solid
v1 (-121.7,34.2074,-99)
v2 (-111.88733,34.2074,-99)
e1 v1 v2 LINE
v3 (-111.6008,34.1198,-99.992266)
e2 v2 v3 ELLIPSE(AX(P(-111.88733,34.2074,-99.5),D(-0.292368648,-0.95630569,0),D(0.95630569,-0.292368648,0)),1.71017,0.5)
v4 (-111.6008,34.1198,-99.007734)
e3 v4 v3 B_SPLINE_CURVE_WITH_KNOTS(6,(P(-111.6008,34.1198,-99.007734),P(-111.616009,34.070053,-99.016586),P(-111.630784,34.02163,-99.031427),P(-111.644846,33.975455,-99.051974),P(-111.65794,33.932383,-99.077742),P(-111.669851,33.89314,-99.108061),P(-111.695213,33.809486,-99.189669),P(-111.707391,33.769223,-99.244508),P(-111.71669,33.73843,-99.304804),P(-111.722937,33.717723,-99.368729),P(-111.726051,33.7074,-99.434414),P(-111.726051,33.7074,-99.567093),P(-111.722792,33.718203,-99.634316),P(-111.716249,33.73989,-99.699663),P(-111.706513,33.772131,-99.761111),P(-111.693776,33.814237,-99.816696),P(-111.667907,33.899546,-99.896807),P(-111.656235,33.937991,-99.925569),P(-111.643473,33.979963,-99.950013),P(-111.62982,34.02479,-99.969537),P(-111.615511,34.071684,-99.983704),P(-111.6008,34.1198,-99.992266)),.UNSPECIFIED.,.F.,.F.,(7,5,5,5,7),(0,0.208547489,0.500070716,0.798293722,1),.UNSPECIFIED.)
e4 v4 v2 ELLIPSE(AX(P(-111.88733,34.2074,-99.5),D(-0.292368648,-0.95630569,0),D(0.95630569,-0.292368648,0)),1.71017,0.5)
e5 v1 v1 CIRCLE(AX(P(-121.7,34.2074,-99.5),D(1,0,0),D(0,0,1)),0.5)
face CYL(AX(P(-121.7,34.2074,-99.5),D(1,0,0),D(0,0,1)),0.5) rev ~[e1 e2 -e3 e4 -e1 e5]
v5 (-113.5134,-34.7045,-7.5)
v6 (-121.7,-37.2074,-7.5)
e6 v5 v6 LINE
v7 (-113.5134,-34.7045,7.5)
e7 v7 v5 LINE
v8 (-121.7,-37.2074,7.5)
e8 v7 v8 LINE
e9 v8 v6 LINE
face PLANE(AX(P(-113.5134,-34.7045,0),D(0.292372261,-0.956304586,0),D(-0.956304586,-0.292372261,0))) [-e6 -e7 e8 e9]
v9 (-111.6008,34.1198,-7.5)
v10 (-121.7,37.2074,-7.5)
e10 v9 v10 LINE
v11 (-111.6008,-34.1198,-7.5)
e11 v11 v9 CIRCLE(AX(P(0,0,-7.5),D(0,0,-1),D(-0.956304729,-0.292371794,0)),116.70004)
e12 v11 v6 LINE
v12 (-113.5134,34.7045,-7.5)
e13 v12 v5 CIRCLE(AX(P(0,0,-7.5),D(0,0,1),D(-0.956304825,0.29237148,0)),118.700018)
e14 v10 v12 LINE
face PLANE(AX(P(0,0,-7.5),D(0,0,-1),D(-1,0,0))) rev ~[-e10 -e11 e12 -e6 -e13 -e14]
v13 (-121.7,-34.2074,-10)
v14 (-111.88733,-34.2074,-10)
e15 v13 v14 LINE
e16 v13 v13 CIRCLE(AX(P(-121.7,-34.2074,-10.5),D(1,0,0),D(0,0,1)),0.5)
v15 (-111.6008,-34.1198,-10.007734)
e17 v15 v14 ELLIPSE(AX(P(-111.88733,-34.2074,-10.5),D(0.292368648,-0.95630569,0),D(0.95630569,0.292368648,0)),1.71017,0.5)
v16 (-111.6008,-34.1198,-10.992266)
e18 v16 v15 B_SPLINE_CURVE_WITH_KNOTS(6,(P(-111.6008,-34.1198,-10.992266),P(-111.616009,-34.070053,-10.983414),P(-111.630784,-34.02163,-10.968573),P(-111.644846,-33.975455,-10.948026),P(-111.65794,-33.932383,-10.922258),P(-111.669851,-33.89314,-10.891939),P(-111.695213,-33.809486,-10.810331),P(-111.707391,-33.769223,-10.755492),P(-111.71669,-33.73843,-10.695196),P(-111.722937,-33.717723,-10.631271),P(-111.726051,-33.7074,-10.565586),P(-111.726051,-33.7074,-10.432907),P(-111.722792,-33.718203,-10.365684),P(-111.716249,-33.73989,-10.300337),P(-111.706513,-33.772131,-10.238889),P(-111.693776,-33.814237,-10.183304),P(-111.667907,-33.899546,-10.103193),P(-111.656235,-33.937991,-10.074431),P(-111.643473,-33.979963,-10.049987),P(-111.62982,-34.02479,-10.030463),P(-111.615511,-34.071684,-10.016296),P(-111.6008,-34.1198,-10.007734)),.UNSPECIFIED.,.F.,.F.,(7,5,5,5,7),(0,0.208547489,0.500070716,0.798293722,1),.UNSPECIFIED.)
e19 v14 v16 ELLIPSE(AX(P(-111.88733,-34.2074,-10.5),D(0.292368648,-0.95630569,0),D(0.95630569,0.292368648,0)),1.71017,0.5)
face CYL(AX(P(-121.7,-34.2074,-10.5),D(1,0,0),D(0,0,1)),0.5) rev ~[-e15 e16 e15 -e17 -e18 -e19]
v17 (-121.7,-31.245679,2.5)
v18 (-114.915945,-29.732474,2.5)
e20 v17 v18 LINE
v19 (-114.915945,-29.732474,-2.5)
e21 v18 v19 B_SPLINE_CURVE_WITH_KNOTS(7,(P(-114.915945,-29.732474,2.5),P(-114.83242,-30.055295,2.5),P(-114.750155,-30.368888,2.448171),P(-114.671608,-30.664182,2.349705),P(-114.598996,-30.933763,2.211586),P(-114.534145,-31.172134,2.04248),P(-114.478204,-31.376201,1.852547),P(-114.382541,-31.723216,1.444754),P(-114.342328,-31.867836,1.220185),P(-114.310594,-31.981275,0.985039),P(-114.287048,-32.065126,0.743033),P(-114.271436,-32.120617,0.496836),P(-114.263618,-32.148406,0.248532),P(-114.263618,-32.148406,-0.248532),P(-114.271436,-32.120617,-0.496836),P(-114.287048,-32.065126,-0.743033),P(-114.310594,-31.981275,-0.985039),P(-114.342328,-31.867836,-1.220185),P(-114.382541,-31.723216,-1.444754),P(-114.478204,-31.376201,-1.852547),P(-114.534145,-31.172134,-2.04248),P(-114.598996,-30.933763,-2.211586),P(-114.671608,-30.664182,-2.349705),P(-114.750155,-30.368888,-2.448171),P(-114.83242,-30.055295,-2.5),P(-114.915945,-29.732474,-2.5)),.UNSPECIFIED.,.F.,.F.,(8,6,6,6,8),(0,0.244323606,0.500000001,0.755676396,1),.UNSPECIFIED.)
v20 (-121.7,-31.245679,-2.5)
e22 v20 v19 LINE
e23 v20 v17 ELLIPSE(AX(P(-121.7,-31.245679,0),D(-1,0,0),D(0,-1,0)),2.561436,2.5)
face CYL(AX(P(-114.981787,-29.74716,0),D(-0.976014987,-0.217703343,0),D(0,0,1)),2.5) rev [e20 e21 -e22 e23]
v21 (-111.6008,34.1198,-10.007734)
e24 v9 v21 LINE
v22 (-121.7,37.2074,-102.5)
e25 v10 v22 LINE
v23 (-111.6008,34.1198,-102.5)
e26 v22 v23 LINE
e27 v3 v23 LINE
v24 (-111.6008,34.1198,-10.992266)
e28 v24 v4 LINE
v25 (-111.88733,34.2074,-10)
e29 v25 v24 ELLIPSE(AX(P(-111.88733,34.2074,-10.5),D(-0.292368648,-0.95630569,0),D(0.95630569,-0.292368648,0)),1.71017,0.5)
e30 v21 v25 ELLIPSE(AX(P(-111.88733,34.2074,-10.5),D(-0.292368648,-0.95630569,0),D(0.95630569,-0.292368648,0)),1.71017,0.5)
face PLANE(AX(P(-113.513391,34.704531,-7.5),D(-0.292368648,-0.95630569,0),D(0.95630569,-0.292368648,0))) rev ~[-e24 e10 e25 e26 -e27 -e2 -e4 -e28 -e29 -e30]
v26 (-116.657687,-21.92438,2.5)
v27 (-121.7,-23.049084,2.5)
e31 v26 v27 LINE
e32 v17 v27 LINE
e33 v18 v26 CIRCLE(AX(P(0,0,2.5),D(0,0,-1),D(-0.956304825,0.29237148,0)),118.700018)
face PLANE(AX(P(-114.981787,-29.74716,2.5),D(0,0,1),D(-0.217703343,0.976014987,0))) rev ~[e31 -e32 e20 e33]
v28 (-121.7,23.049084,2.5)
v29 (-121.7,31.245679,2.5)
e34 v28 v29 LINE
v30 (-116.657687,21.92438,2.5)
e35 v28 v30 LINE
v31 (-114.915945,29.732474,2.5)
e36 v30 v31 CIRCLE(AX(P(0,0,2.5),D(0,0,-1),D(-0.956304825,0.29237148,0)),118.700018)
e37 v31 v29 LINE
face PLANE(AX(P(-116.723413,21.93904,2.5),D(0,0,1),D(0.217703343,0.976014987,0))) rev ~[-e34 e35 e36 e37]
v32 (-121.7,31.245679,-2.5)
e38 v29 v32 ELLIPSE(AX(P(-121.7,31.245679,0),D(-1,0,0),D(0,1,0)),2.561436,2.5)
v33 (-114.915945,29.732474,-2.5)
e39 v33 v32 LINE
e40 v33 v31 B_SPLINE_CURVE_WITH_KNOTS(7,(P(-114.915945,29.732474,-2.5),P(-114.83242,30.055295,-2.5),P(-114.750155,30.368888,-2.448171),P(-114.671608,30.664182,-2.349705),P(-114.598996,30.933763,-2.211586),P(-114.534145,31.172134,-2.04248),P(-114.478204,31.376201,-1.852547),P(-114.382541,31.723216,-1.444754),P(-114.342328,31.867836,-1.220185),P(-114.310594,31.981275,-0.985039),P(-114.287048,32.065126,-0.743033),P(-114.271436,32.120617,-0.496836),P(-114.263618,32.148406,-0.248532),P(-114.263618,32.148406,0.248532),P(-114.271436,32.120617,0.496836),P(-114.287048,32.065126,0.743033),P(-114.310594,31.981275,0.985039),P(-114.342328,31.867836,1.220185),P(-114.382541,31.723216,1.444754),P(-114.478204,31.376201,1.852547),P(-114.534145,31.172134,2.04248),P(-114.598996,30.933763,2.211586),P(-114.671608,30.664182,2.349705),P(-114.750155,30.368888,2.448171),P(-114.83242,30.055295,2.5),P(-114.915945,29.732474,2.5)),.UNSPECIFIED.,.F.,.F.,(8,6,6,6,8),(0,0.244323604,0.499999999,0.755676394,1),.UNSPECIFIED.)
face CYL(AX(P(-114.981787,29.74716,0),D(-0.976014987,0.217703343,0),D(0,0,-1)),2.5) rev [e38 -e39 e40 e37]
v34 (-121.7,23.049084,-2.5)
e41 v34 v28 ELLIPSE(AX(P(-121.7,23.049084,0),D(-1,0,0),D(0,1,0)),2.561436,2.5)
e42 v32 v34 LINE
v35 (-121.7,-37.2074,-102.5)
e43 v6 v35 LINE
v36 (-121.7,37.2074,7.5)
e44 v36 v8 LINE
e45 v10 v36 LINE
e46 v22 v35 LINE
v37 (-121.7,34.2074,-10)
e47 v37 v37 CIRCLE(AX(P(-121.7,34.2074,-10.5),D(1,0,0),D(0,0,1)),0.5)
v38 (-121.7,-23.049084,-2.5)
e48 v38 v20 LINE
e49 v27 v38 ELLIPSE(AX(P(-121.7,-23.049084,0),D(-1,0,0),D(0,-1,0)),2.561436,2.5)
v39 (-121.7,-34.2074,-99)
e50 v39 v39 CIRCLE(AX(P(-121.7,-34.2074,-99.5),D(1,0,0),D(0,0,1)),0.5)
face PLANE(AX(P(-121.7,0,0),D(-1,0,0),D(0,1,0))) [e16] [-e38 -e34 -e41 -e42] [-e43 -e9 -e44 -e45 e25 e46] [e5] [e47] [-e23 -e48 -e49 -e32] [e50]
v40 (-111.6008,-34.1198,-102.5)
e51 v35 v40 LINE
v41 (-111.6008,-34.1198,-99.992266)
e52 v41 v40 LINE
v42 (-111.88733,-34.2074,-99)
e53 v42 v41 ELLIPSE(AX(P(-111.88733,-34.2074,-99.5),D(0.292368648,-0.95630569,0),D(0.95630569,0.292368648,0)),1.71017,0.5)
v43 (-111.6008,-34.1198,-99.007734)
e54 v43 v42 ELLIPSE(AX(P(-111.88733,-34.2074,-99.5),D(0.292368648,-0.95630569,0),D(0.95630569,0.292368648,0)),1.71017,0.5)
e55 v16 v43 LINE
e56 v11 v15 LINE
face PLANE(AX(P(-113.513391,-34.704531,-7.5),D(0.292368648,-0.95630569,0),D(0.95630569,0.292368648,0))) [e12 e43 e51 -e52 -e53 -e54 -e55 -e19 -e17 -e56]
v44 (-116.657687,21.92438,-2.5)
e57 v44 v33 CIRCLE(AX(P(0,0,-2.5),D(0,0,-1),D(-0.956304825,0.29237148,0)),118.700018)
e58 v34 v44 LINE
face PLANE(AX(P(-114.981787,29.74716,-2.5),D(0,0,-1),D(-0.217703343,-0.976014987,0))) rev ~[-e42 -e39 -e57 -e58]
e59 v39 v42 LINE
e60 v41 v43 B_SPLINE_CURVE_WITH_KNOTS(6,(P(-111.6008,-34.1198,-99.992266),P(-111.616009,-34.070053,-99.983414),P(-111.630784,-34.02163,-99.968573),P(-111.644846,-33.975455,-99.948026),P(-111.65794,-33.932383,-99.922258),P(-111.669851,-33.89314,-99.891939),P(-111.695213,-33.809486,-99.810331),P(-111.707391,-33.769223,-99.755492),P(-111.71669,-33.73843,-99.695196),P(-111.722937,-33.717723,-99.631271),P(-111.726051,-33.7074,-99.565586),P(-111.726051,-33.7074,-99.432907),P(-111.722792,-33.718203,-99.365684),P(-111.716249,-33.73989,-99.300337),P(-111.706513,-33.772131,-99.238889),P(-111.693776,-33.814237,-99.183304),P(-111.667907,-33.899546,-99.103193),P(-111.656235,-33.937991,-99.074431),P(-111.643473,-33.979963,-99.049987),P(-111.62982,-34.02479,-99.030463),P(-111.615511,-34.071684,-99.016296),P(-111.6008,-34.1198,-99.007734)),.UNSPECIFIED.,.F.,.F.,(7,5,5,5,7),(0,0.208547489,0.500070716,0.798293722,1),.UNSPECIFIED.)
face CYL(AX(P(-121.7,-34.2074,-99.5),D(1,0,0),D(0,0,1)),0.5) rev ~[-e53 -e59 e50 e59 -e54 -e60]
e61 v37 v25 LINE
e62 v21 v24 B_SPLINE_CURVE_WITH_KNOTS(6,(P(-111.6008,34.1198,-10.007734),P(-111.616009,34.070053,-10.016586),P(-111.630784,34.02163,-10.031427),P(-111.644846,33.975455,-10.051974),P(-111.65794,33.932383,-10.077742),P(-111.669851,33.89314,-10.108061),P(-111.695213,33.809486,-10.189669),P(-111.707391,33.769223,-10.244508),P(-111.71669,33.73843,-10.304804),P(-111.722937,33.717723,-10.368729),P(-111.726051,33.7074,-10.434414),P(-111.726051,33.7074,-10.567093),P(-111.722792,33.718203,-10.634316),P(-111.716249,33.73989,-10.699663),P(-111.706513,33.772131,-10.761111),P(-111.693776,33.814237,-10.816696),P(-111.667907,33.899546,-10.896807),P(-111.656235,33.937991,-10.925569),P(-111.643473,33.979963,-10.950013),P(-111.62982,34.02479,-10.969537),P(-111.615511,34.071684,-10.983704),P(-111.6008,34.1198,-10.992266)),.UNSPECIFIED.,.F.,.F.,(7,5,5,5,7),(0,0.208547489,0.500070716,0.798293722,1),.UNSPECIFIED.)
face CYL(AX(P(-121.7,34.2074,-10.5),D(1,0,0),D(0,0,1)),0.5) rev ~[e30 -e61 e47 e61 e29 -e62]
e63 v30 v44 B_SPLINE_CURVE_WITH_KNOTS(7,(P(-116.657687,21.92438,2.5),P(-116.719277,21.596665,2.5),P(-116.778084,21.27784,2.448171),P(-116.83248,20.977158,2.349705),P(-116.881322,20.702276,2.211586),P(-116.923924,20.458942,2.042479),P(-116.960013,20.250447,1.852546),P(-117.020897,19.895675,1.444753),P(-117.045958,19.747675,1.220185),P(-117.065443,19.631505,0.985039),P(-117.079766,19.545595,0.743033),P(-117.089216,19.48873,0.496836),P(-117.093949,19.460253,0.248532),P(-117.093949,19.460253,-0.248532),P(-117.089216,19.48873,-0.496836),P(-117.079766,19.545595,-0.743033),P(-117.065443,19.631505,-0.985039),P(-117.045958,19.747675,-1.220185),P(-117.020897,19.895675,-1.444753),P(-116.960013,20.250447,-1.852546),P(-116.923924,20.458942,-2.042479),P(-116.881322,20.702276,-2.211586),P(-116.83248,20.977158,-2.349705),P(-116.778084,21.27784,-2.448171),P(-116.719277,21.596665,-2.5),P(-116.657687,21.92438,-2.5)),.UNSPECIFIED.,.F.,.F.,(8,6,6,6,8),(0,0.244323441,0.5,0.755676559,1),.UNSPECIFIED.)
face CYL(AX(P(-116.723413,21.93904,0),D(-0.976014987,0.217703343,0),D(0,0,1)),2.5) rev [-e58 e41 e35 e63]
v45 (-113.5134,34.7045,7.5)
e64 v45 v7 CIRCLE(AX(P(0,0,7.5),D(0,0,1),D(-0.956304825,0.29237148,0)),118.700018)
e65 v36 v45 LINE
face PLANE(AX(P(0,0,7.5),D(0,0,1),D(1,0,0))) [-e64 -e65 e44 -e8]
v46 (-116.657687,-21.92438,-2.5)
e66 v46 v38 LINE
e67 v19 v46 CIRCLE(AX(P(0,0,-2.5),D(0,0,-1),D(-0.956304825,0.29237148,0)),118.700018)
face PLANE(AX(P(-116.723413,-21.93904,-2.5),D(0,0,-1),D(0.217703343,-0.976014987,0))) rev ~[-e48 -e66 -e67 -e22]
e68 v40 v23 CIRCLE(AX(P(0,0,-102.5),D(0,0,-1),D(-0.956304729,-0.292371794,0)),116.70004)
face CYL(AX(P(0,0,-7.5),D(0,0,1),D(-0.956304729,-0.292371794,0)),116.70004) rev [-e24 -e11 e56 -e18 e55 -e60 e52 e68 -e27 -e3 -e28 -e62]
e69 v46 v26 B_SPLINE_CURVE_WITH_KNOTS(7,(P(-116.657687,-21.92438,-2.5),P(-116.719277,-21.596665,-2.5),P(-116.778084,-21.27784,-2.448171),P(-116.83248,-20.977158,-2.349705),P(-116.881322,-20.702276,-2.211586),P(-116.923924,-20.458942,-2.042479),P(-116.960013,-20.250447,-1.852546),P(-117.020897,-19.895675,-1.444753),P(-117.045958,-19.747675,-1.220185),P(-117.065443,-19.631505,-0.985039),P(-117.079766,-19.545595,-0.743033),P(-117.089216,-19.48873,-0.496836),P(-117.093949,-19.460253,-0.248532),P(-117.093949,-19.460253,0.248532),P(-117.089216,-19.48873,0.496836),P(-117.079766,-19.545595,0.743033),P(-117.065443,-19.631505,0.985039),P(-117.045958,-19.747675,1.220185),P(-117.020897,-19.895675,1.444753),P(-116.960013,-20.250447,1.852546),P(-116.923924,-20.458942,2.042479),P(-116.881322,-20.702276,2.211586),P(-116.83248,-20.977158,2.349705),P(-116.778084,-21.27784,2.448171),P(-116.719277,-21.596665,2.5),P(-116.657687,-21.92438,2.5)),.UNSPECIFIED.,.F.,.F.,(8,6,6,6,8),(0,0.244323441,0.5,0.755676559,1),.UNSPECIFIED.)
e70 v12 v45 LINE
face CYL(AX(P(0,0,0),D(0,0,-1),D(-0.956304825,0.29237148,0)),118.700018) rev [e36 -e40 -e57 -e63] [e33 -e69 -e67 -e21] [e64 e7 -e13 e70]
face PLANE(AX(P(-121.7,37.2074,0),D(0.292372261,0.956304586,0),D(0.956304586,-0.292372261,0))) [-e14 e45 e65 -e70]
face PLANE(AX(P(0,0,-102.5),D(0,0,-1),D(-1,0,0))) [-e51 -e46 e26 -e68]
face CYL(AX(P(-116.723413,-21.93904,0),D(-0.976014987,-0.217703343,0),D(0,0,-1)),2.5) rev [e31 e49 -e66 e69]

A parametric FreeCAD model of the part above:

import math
import FreeCAD as App
import Part
import Sketcher
Q = App.Units.Quantity

doc = App.newDocument("Part")
body = doc.addObject("PartDesign::Body", "Body")

# Sketch on XY plane
sketch1 = doc.addObject("Sketcher::SketchObject", "Sketch")
body.addObject(sketch1)
sketch1.AttachmentSupport = (doc.XY_Plane, [""])
sketch1.MapMode = "FlatFace"
sketch1.addGeometry([
    Part.ArcOfCircle(Part.Circle(App.Vector(0, 0, 0), App.Vector(0, 0, 1), 118.700018), math.radians(163.000013), math.radians(196.999987)),
    Part.LineSegment(App.Vector(-113.5134, 34.7045, 0), App.Vector(-121.7, 37.2074, 0)),
    Part.LineSegment(App.Vector(-121.7, 37.2074, 0), App.Vector(-121.7, -37.2074, 0)),
    Part.LineSegment(App.Vector(-121.7, -37.2074, 0), App.Vector(-113.5134, -34.7045, 0)),
], False)
sketch1.addConstraint([
    Sketcher.Constraint("Coincident", 0, 1, 1, 1),
    Sketcher.Constraint("Coincident", 1, 2, 2, 1),
    Sketcher.Constraint("Coincident", 2, 2, 3, 1),
    Sketcher.Constraint("Coincident", 3, 2, 0, 2),
    Sketcher.Constraint("Vertical", 2),
    Sketcher.Constraint("Coincident", 0, 3, -1, 1),
    Sketcher.Constraint("Vertical", 0, 1, 3, 2),
    Sketcher.Constraint("Equal", 1, 3),
    Sketcher.Constraint("Radius", 0, 118.7),
    Sketcher.Constraint("Angle", 3, Q("17 deg")),
    Sketcher.Constraint("DistanceX", 1, 2, -1, 1, 121.7),
    Sketcher.Constraint("DistanceY", 2, 2, 2, 1, 74.4148),
])
pad1 = doc.addObject("PartDesign::Pad", "Pad")
body.addObject(pad1)
pad1.Profile = sketch1
pad1.Length = 15
pad1.Midplane = True

# Sketch on an angled plane
sketch2 = doc.addObject("Sketcher::SketchObject", "Sketch001")
body.addObject(sketch2)
sketch2.Placement = App.Placement(App.Vector(-115.8526, 25.8431, 0), App.Rotation(App.Vector(0.217703343, 0.976014987, 0), App.Vector(0, 0, 1), App.Vector(0.976014987, -0.217703343, 0), "ZXY"))
sketch2.addGeometry([
    Part.LineSegment(App.Vector(4, 2.5, 0), App.Vector(-4, 2.5, 0)),
    Part.ArcOfCircle(Part.Circle(App.Vector(-4, 0, 0), App.Vector(0, 0, 1), 2.5), math.radians(90), math.radians(270)),
    Part.LineSegment(App.Vector(-4, -2.5, 0), App.Vector(4, -2.5, 0)),
    Part.ArcOfCircle(Part.Circle(App.Vector(4, 0, 0), App.Vector(0, 0, 1), 2.5), math.radians(-90), math.radians(90)),
], False)
sketch2.addConstraint([
    Sketcher.Constraint("Tangent", 0, 2, 1, 1),
    Sketcher.Constraint("Tangent", 1, 2, 2, 1),
    Sketcher.Constraint("Tangent", 2, 2, 3, 1),
    Sketcher.Constraint("Tangent", 3, 2, 0, 1),
    Sketcher.Constraint("Horizontal", 0),
    Sketcher.Constraint("Horizontal", 2),
    Sketcher.Constraint("Symmetric", 1, 3, 3, 3, -1, 1),
    Sketcher.Constraint("Radius", 1, 2.5),
    Sketcher.Constraint("DistanceX", 1, 3, -1, 1, 4.0),
])
pocket1 = doc.addObject("PartDesign::Pocket", "Pocket")
body.addObject(pocket1)
pocket1.Profile = sketch2
pocket1.Type = "ThroughAll"
pocket1.Midplane = True

# Sketch on an angled plane
sketch3 = doc.addObject("Sketcher::SketchObject", "Sketch002")
body.addObject(sketch3)
sketch3.Placement = App.Placement(App.Vector(-115.8526, -25.8431, 0), App.Rotation(App.Vector(-0.217703343, 0.976014987, 0), App.Vector(0, 0, 1), App.Vector(0.976014987, 0.217703343, 0), "ZXY"))
sketch3.addGeometry([
    Part.LineSegment(App.Vector(4, 2.5, 0), App.Vector(-4, 2.5, 0)),
    Part.ArcOfCircle(Part.Circle(App.Vector(-4, 0, 0), App.Vector(0, 0, 1), 2.5), math.radians(90), math.radians(270)),
    Part.LineSegment(App.Vector(-4, -2.5, 0), App.Vector(4, -2.5, 0)),
    Part.ArcOfCircle(Part.Circle(App.Vector(4, 0, 0), App.Vector(0, 0, 1), 2.5), math.radians(-90), math.radians(90)),
], False)
sketch3.addConstraint([
    Sketcher.Constraint("Tangent", 0, 2, 1, 1),
    Sketcher.Constraint("Tangent", 1, 2, 2, 1),
    Sketcher.Constraint("Tangent", 2, 2, 3, 1),
    Sketcher.Constraint("Tangent", 3, 2, 0, 1),
    Sketcher.Constraint("Horizontal", 0),
    Sketcher.Constraint("Horizontal", 2),
    Sketcher.Constraint("Symmetric", 1, 3, 3, 3, -1, 1),
    Sketcher.Constraint("Radius", 1, 2.5),
    Sketcher.Constraint("DistanceX", 1, 3, -1, 1, 4.0),
])
pocket2 = doc.addObject("PartDesign::Pocket", "Pocket001")
body.addObject(pocket2)
pocket2.Profile = sketch3
pocket2.Type = "ThroughAll"
pocket2.Midplane = True

# Sketch on XY plane
sketch4 = doc.addObject("Sketcher::SketchObject", "Sketch003")
body.addObject(sketch4)
sketch4.AttachmentSupport = (doc.XY_Plane, [""])
sketch4.MapMode = "FlatFace"
sketch4.AttachmentOffset = App.Placement(App.Vector(0, 0, -7.5), App.Rotation())
sketch4.addGeometry([
    Part.LineSegment(App.Vector(-111.6008, -34.1198, 0), App.Vector(-121.7, -37.2074, 0)),
    Part.LineSegment(App.Vector(-121.7, -37.2074, 0), App.Vector(-121.7, 37.2074, 0)),
    Part.LineSegment(App.Vector(-121.7, 37.2074, 0), App.Vector(-111.6008, 34.1198, 0)),
    Part.ArcOfCircle(Part.Circle(App.Vector(0, 0, 0), App.Vector(0, 0, 1), 116.70004), math.radians(162.999995), math.radians(197.000005)),
], False)
sketch4.addConstraint([
    Sketcher.Constraint("Coincident", 0, 2, 1, 1),
    Sketcher.Constraint("Coincident", 1, 2, 2, 1),
    Sketcher.Constraint("Coincident", 2, 2, 3, 1),
    Sketcher.Constraint("Coincident", 3, 2, 0, 1),
    Sketcher.Constraint("Vertical", 1),
    Sketcher.Constraint("Coincident", 3, 3, -1, 1),
    Sketcher.Constraint("Vertical", 2, 2, 3, 2),
    Sketcher.Constraint("Equal", 0, 2),
    Sketcher.Constraint("Radius", 3, 116.7),
    Sketcher.Constraint("Angle", 0, Q("-163.0002 deg")),
    Sketcher.Constraint("DistanceX", 0, 2, -1, 1, 121.7),
    Sketcher.Constraint("DistanceY", 1, 1, 1, 2, 74.4148),
])
pad2 = doc.addObject("PartDesign::Pad", "Pad001")
body.addObject(pad2)
pad2.Profile = sketch4
pad2.Length = 95
pad2.Reversed = True

# Sketch on YZ plane
sketch5 = doc.addObject("Sketcher::SketchObject", "Sketch004")
body.addObject(sketch5)
sketch5.AttachmentSupport = (doc.YZ_Plane, [""])
sketch5.MapMode = "FlatFace"
sketch5.AttachmentOffset = App.Placement(App.Vector(0, 0, -121.7), App.Rotation())
sketch5.addGeometry([
    Part.Circle(App.Vector(34.2074, -99.5, 0), App.Vector(0, 0, 1), 0.5),
    Part.Circle(App.Vector(34.2074, -10.5, 0), App.Vector(0, 0, 1), 0.5),
    Part.Circle(App.Vector(-34.2074, -99.5, 0), App.Vector(0, 0, 1), 0.5),
    Part.Circle(App.Vector(-34.2074, -10.5, 0), App.Vector(0, 0, 1), 0.5),
], False)
sketch5.addConstraint([
    Sketcher.Constraint("Equal", 0, 1),
    Sketcher.Constraint("Equal", 1, 2),
    Sketcher.Constraint("Equal", 2, 3),
    Sketcher.Constraint("Symmetric", 0, 3, 2, 3, -2),
    Sketcher.Constraint("Symmetric", 1, 3, 3, 3, -2),
    Sketcher.Constraint("Vertical", 0, 3, 1, 3),
    Sketcher.Constraint("Diameter", 0, 1.0),
    Sketcher.Constraint("DistanceY", 0, 3, 1, 3, 89.0),
    Sketcher.Constraint("DistanceY", 0, 3, -1, 1, 99.5),
    Sketcher.Constraint("DistanceX", -1, 1, 0, 3, 34.2074),
])
doc.recompute()
hole = doc.addObject("PartDesign::Hole", "Hole")
body.addObject(hole)
hole.Profile = sketch5
hole.ThreadType = "None"
hole.Diameter = 1
hole.DepthType = "Dimension"
hole.Depth = 25
hole.DrillPoint = "Angled"
hole.DrillPointAngle = 118
hole.Reversed = True

doc.recompute()
